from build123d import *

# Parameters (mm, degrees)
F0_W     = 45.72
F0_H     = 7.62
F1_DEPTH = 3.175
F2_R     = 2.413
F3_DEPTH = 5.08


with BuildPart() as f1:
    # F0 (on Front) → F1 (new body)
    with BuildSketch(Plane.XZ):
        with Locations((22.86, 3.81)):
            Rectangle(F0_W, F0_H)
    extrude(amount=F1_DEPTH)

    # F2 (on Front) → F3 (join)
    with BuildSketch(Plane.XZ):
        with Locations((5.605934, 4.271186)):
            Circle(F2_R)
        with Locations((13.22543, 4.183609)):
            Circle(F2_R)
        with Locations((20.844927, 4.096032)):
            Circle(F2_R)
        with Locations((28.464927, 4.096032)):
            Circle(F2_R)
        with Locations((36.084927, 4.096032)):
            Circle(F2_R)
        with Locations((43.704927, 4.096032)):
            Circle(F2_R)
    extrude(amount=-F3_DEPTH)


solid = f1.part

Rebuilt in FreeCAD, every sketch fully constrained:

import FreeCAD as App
import Part
import Sketcher
Q = App.Units.Quantity

doc = App.newDocument("Part")
params = doc.addObject("Spreadsheet::Sheet", "Params")
for row, (alias, value) in enumerate([
    ("sketch1_width", "1.8 in"),
    ("sketch1_height", "0.3 in"),
    ("pad1_length", "0.125 in"),
    ("sketch2_diameter", "0.19 in"),
    ("pad2_length", "0.2 in"),
], start=1):
    params.set(f"A{row}", alias)
    params.set(f"B{row}", "=" + value)
    params.setAlias(f"B{row}", alias)

body = doc.addObject("PartDesign::Body", "Body")

# Sketch on XZ plane
sketch1 = body.newObject("Sketcher::SketchObject", "Sketch")
sketch1.AttachmentSupport = (doc.getObject("XZ_Plane"), [""])
sketch1.MapMode = "FlatFace"
sketch1.addGeometry(Part.LineSegment(App.Vector(0, 8, 0), App.Vector(0, 0, 0)), False)
sketch1.addGeometry(Part.LineSegment(App.Vector(0, 0, 0), App.Vector(46, 0, 0)), False)
sketch1.addGeometry(Part.LineSegment(App.Vector(46, 0, 0), App.Vector(46, 8, 0)), False)
sketch1.addGeometry(Part.LineSegment(App.Vector(46, 8, 0), App.Vector(0, 8, 0)), False)
sketch1.addConstraint(Sketcher.Constraint("Coincident", 0, 2, 1, 1))
sketch1.addConstraint(Sketcher.Constraint("Coincident", 1, 2, 2, 1))
sketch1.addConstraint(Sketcher.Constraint("Coincident", 2, 2, 3, 1))
sketch1.addConstraint(Sketcher.Constraint("Coincident", 3, 2, 0, 1))
sketch1.addConstraint(Sketcher.Constraint("Vertical", 0))
sketch1.addConstraint(Sketcher.Constraint("Horizontal", 1))
sketch1.addConstraint(Sketcher.Constraint("Vertical", 2))
sketch1.addConstraint(Sketcher.Constraint("Horizontal", 3))
sketch1.addConstraint(Sketcher.Constraint("Coincident", 0, 2, -1, 1))
sketch1.addConstraint(Sketcher.Constraint("DistanceX", 1, 1, 1, 2, Q("1.8 in")))
sketch1.addConstraint(Sketcher.Constraint("DistanceY", 0, 2, 0, 1, Q("0.3 in")))
sketch1.setExpression("Constraints[9]", "Params.sketch1_width")
sketch1.setExpression("Constraints[10]", "Params.sketch1_height")
pad1 = body.newObject("PartDesign::Pad", "Pad")
pad1.Profile = sketch1
pad1.setExpression("Length", "Params.pad1_length")

# Sketch on XZ plane
sketch2 = body.newObject("Sketcher::SketchObject", "Sketch001")
sketch2.AttachmentSupport = (doc.getObject("XZ_Plane"), [""])
sketch2.MapMode = "FlatFace"
sketch2.addGeometry(Part.Circle(App.Vector(5.6, 4.3, 0), App.Vector(0, 0, 1), 2.4), False)
sketch2.addGeometry(Part.Circle(App.Vector(13.2, 4.2, 0), App.Vector(0, 0, 1), 2.4), False)
sketch2.addGeometry(Part.Circle(App.Vector(20.8, 4.1, 0), App.Vector(0, 0, 1), 2.4), False)
sketch2.addGeometry(Part.Circle(App.Vector(28.5, 4.1, 0), App.Vector(0, 0, 1), 2.4), False)
sketch2.addGeometry(Part.Circle(App.Vector(36.1, 4.1, 0), App.Vector(0, 0, 1), 2.4), False)
sketch2.addGeometry(Part.Circle(App.Vector(43.7, 4.1, 0), App.Vector(0, 0, 1), 2.4), False)
sketch2.addConstraint(Sketcher.Constraint("Equal", 0, 1))
sketch2.addConstraint(Sketcher.Constraint("Equal", 1, 2))
sketch2.addConstraint(Sketcher.Constraint("Equal", 2, 3))
sketch2.addConstraint(Sketcher.Constraint("Equal", 3, 4))
sketch2.addConstraint(Sketcher.Constraint("Equal", 4, 5))
sketch2.addConstraint(Sketcher.Constraint("Horizontal", 2, 3, 3, 3))
sketch2.addConstraint(Sketcher.Constraint("Horizontal", 3, 3, 4, 3))
sketch2.addConstraint(Sketcher.Constraint("Horizontal", 4, 3, 5, 3))
sketch2.addConstraint(Sketcher.Constraint("Diameter", 0, Q("0.19 in")))
sketch2.addConstraint(Sketcher.Constraint("DistanceX", 2, 3, 3, 3, Q("0.3 in")))
sketch2.addConstraint(Sketcher.Constraint("DistanceX", 3, 3, 4, 3, Q("0.3 in")))
sketch2.addConstraint(Sketcher.Constraint("DistanceX", 4, 3, 5, 3, Q("0.3 in")))
sketch2.addConstraint(Sketcher.Constraint("DistanceX", -1, 1, 1, 3, Q("13.22543 mm")))
sketch2.addConstraint(Sketcher.Constraint("DistanceY", -1, 1, 1, 3, Q("4.183609 mm")))
sketch2.addConstraint(Sketcher.Constraint("DistanceX", -1, 1, 0, 3, Q("5.605934 mm")))
sketch2.addConstraint(Sketcher.Constraint("DistanceY", -1, 1, 0, 3, Q("4.271186 mm")))
sketch2.addConstraint(Sketcher.Constraint("DistanceX", -1, 1, 2, 3, Q("20.844927 mm")))
sketch2.addConstraint(Sketcher.Constraint("DistanceY", -1, 1, 2, 3, Q("4.096032 mm")))
sketch2.setExpression("Constraints[8]", "Params.sketch2_diameter")
pad2 = body.newObject("PartDesign::Pad", "Pad001")
pad2.Profile = sketch2
pad2.setExpression("Length", "Params.pad2_length")
pad2.Reversed = True

doc.recompute()
